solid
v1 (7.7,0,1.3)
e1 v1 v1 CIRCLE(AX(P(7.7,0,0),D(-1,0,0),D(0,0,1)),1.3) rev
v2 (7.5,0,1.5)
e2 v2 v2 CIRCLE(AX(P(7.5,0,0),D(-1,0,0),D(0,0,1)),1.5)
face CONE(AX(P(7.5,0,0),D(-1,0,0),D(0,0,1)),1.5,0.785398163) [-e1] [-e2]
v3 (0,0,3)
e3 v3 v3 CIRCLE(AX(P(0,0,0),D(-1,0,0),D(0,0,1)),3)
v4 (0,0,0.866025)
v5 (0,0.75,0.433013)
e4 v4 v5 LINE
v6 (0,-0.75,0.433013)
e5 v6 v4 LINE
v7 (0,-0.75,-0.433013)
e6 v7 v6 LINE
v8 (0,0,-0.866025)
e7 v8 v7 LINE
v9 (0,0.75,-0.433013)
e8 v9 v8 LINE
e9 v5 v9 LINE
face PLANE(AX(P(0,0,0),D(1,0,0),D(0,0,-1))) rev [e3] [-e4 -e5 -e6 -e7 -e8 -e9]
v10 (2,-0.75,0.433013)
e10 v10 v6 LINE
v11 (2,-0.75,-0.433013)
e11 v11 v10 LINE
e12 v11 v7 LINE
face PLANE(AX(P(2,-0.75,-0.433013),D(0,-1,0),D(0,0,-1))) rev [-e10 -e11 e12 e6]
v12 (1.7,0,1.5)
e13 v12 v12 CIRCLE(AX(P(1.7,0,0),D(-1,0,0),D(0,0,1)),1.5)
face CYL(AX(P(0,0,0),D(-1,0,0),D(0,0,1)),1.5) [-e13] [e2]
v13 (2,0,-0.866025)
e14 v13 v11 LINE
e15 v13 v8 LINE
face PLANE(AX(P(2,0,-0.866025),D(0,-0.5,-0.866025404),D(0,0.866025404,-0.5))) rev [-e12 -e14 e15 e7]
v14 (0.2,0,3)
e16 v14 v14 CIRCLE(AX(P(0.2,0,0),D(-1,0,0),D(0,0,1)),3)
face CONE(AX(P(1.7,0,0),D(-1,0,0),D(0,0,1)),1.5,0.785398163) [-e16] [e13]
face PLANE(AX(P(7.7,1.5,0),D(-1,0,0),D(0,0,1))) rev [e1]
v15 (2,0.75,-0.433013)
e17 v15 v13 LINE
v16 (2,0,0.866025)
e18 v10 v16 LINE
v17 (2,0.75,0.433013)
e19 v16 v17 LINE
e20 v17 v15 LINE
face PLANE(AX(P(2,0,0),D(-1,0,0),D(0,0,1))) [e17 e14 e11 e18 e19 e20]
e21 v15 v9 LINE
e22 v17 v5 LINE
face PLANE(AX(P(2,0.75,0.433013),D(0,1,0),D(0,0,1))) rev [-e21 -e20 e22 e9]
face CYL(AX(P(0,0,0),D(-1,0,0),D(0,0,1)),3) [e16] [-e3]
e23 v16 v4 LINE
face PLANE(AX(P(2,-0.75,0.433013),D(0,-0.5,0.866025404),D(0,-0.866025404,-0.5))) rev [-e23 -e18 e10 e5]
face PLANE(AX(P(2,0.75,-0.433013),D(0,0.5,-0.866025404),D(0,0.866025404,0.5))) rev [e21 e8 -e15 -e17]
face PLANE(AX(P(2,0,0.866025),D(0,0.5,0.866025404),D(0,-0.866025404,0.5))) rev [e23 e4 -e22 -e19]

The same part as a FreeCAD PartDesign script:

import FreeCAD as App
import Part
import Sketcher
Q = App.Units.Quantity


def edges_at(feature, points):
    """Names of the edges that pass closest to the given points."""
    edges = feature.Shape.Edges
    near = lambda p: min(range(len(edges)), key=lambda i: edges[i].distToShape(Part.Vertex(*p))[0])
    return sorted({f"Edge{near(p) + 1}" for p in points})


def add_polygon(sketch, points):
    """Adds a closed chain of lines whose ends are joined by coincident constraints."""
    first, n = sketch.GeometryCount, len(points)
    for a, b in zip(points, points[1:] + points[:1]):
        sketch.addGeometry(Part.LineSegment(App.Vector(*a, 0), App.Vector(*b, 0)), False)
    for i in range(n):
        sketch.addConstraint(Sketcher.Constraint("Coincident", first + i, 2, first + (i + 1) % n, 1))

doc = App.newDocument("Part")
body = doc.addObject("PartDesign::Body", "Body")

sketch1 = body.newObject("Sketcher::SketchObject", "Sketch")
sketch1.AttachmentSupport = (doc.getObject("XY_Plane"), [""])
sketch1.MapMode = "FlatFace"
add_polygon(sketch1, [(0, 3), (0, 0), (7.7, 0), (7.7, 1.5), (1.7, 1.5), (0.2, 3)])
sketch1.addConstraint(Sketcher.Constraint("Vertical", 0))
sketch1.addConstraint(Sketcher.Constraint("Horizontal", 1))
sketch1.addConstraint(Sketcher.Constraint("Vertical", 2))
sketch1.addConstraint(Sketcher.Constraint("Horizontal", 3))
sketch1.addConstraint(Sketcher.Constraint("Horizontal", 5))
sketch1.addConstraint(Sketcher.Constraint("Coincident", 0, 2, -1, 1))
sketch1.addConstraint(Sketcher.Constraint("DistanceX", 3, 2, 3, 1, 6.0))
sketch1.addConstraint(Sketcher.Constraint("DistanceY", 0, 2, 0, 1, 3.0))
sketch1.addConstraint(Sketcher.Constraint("Angle", 4, Q("135 deg")))
sketch1.addConstraint(Sketcher.Constraint("DistanceX", 1, 1, 1, 2, 7.7))
sketch1.addConstraint(Sketcher.Constraint("DistanceX", 5, 2, 5, 1, 0.2))
revolution = body.newObject("PartDesign::Revolution", "Revolution")
revolution.Profile = sketch1
revolution.ReferenceAxis = (sketch1, ["H_Axis"])
revolution.Angle = 360

sketch2 = body.newObject("Sketcher::SketchObject", "Sketch001")
sketch2.AttachmentSupport = (doc.getObject("YZ_Plane"), [""])
sketch2.MapMode = "FlatFace"
add_polygon(sketch2, [(-0.8, 0.4), (0, 0.9), (0.8, 0.4), (0.8, -0.4), (0, -0.9), (-0.8, -0.4)])
sketch2.addConstraint(Sketcher.Constraint("Vertical", 2))
sketch2.addConstraint(Sketcher.Constraint("Vertical", 5))
sketch2.addConstraint(Sketcher.Constraint("Symmetric", 0, 2, 3, 2, -1, 1))
sketch2.addConstraint(Sketcher.Constraint("Symmetric", 1, 2, 4, 2, -1, 1))
sketch2.addConstraint(Sketcher.Constraint("PointOnObject", 0, 2, -2))
sketch2.addConstraint(Sketcher.Constraint("Parallel", 0, 3))
sketch2.addConstraint(Sketcher.Constraint("Horizontal", 2, 2, 4, 2))
sketch2.addConstraint(Sketcher.Constraint("Angle", 0, Q("30 deg")))
sketch2.addConstraint(Sketcher.Constraint("DistanceX", 4, 2, 2, 2, 1.5))
sketch2.addConstraint(Sketcher.Constraint("DistanceY", 2, 2, 2, 1, 0.866025))
pocket1 = body.newObject("PartDesign::Pocket", "Pocket")
pocket1.Profile = sketch2
pocket1.Length = 2
pocket1.Reversed = True
doc.recompute()

chamfer = body.newObject("PartDesign::Chamfer", "Chamfer")
chamfer.Base = (pocket1, edges_at(pocket1, [(7.7, -1.5, 0)]))
chamfer.Size = 0.2

doc.recompute()
